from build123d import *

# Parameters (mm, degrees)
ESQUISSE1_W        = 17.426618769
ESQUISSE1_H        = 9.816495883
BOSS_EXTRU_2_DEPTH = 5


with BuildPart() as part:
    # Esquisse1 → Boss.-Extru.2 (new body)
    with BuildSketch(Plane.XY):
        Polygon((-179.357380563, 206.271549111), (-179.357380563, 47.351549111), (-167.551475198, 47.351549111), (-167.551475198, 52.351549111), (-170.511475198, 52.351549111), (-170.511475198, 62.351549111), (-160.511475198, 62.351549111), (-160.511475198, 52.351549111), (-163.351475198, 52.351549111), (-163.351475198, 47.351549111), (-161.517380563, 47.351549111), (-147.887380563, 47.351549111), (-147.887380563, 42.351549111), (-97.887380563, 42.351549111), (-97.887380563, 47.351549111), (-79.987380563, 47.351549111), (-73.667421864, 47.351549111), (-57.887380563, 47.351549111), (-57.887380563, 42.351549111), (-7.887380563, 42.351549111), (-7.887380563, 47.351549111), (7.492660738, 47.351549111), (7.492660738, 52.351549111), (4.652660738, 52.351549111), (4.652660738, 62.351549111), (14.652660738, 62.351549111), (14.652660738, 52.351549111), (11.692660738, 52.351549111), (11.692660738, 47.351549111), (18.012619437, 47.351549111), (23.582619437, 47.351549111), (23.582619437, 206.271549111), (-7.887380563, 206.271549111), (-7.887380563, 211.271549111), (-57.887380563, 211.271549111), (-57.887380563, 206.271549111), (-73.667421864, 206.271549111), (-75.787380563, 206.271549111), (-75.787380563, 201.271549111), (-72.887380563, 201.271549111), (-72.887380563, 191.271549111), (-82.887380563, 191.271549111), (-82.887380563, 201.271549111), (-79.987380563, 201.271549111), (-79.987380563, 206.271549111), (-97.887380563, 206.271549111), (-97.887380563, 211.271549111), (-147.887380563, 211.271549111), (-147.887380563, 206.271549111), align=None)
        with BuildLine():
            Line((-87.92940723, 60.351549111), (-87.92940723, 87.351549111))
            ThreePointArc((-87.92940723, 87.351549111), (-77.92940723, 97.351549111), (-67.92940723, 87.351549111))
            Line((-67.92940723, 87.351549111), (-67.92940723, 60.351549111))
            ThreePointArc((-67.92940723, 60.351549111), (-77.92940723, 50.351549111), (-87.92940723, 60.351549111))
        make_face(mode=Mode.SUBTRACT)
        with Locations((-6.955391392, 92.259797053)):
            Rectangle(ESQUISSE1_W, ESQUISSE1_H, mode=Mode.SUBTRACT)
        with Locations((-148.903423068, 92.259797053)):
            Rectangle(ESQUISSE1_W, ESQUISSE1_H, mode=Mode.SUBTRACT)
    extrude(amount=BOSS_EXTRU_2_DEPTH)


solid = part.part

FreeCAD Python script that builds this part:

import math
import FreeCAD as App
import Part
import Sketcher

V = App.Vector
Q = App.Units.Quantity

doc = App.newDocument("Part")
params = doc.addObject("Spreadsheet::Sheet", "Params")
for row, (alias, value) in enumerate([
    ("sketch1_radius", "10 mm"),
    ("sketch1_width", "10 mm"),
    ("sketch1_width2", "50 mm"),
    ("sketch1_width3", "40 mm"),
    ("sketch1_height", "5 mm"),
    ("pad1_length", "5 mm"),
], start=1):
    params.set(f"A{row}", alias)
    params.set(f"B{row}", "=" + value)
    params.setAlias(f"B{row}", alias)

body = doc.addObject("PartDesign::Body", "Body")

# Sketch on XY plane
sketch1 = body.newObject("Sketcher::SketchObject", "Sketch")
sketch1.AttachmentSupport = (doc.getObject("XY_Plane"), [""])
sketch1.MapMode = "FlatFace"
sketch1.addGeometry([
    Part.LineSegment(V(-179.357381, 206.271549, 0), V(-179.357381, 47.351549, 0)),  # 0
    Part.LineSegment(V(-179.357381, 47.351549, 0), V(-167.551475, 47.351549, 0)),  # 1
    Part.LineSegment(V(-167.551475, 47.351549, 0), V(-167.551475, 52.351549, 0)),  # 2
    Part.LineSegment(V(-167.551475, 52.351549, 0), V(-170.511475, 52.351549, 0)),  # 3
    Part.LineSegment(V(-170.511475, 52.351549, 0), V(-170.511475, 62.351549, 0)),  # 4
    Part.LineSegment(V(-170.511475, 62.351549, 0), V(-160.511475, 62.351549, 0)),  # 5
    Part.LineSegment(V(-160.511475, 62.351549, 0), V(-160.511475, 52.351549, 0)),  # 6
    Part.LineSegment(V(-160.511475, 52.351549, 0), V(-163.351475, 52.351549, 0)),  # 7
    Part.LineSegment(V(-163.351475, 52.351549, 0), V(-163.351475, 47.351549, 0)),  # 8
    Part.LineSegment(V(-163.351475, 47.351549, 0), V(-147.887381, 47.351549, 0)),  # 9
    Part.LineSegment(V(-147.887381, 47.351549, 0), V(-147.887381, 42.351549, 0)),  # 10
    Part.LineSegment(V(-147.887381, 42.351549, 0), V(-97.887381, 42.351549, 0)),  # 11
    Part.LineSegment(V(-97.887381, 42.351549, 0), V(-97.887381, 47.351549, 0)),  # 12
    Part.LineSegment(V(-97.887381, 47.351549, 0), V(-57.887381, 47.351549, 0)),  # 13
    Part.LineSegment(V(-57.887381, 47.351549, 0), V(-57.887381, 42.351549, 0)),  # 14
    Part.LineSegment(V(-57.887381, 42.351549, 0), V(-7.887381, 42.351549, 0)),  # 15
    Part.LineSegment(V(-7.887381, 42.351549, 0), V(-7.887381, 47.351549, 0)),  # 16
    Part.LineSegment(V(-7.887381, 47.351549, 0), V(7.492661, 47.351549, 0)),  # 17
    Part.LineSegment(V(7.492661, 47.351549, 0), V(7.492661, 52.351549, 0)),  # 18
    Part.LineSegment(V(7.492661, 52.351549, 0), V(4.652661, 52.351549, 0)),  # 19
    Part.LineSegment(V(4.652661, 52.351549, 0), V(4.652661, 62.351549, 0)),  # 20
    Part.LineSegment(V(4.652661, 62.351549, 0), V(14.652661, 62.351549, 0)),  # 21
    Part.LineSegment(V(14.652661, 62.351549, 0), V(14.652661, 52.351549, 0)),  # 22
    Part.LineSegment(V(14.652661, 52.351549, 0), V(11.692661, 52.351549, 0)),  # 23
    Part.LineSegment(V(11.692661, 52.351549, 0), V(11.692661, 47.351549, 0)),  # 24
    Part.LineSegment(V(11.692661, 47.351549, 0), V(23.582619, 47.351549, 0)),  # 25
    Part.LineSegment(V(23.582619, 47.351549, 0), V(23.582619, 206.271549, 0)),  # 26
    Part.LineSegment(V(23.582619, 206.271549, 0), V(-7.887381, 206.271549, 0)),  # 27
    Part.LineSegment(V(-7.887381, 206.271549, 0), V(-7.887381, 211.271549, 0)),  # 28
    Part.LineSegment(V(-7.887381, 211.271549, 0), V(-57.887381, 211.271549, 0)),  # 29
    Part.LineSegment(V(-57.887381, 211.271549, 0), V(-57.887381, 206.271549, 0)),  # 30
    Part.LineSegment(V(-57.887381, 206.271549, 0), V(-75.787381, 206.271549, 0)),  # 31
    Part.LineSegment(V(-75.787381, 206.271549, 0), V(-75.787381, 201.271549, 0)),  # 32
    Part.LineSegment(V(-75.787381, 201.271549, 0), V(-72.887381, 201.271549, 0)),  # 33
    Part.LineSegment(V(-72.887381, 201.271549, 0), V(-72.887381, 191.271549, 0)),  # 34
    Part.LineSegment(V(-72.887381, 191.271549, 0), V(-82.887381, 191.271549, 0)),  # 35
    Part.LineSegment(V(-82.887381, 191.271549, 0), V(-82.887381, 201.271549, 0)),  # 36
    Part.LineSegment(V(-82.887381, 201.271549, 0), V(-79.987381, 201.271549, 0)),  # 37
    Part.LineSegment(V(-79.987381, 201.271549, 0), V(-79.987381, 206.271549, 0)),  # 38
    Part.LineSegment(V(-79.987381, 206.271549, 0), V(-97.887381, 206.271549, 0)),  # 39
    Part.LineSegment(V(-97.887381, 206.271549, 0), V(-97.887381, 211.271549, 0)),  # 40
    Part.LineSegment(V(-97.887381, 211.271549, 0), V(-147.887381, 211.271549, 0)),  # 41
    Part.LineSegment(V(-147.887381, 211.271549, 0), V(-147.887381, 206.271549, 0)),  # 42
    Part.LineSegment(V(-147.887381, 206.271549, 0), V(-179.357381, 206.271549, 0)),  # 43
    Part.LineSegment(V(-140.190114, 87.351549, 0), V(-157.616732, 87.351549, 0)),  # 44
    Part.LineSegment(V(-157.616732, 87.351549, 0), V(-157.616732, 97.168045, 0)),  # 45
    Part.LineSegment(V(-157.616732, 97.168045, 0), V(-140.190114, 97.168045, 0)),  # 46
    Part.LineSegment(V(-140.190114, 97.168045, 0), V(-140.190114, 87.351549, 0)),  # 47
    Part.ArcOfCircle(Part.Circle(V(-77.929407, 60.351549, 0), V(0, 0, 1), 10), math.radians(180), math.radians(360)),  # 48
    Part.LineSegment(V(-87.929407, 60.351549, 0), V(-87.929407, 87.351549, 0)),  # 49
    Part.ArcOfCircle(Part.Circle(V(-77.929407, 87.351549, 0), V(0, 0, 1), 10), math.radians(0), math.radians(180)),  # 50
    Part.LineSegment(V(-67.929407, 87.351549, 0), V(-67.929407, 60.351549, 0)),  # 51
    Part.LineSegment(V(1.757918, 87.351549, 0), V(-15.668701, 87.351549, 0)),  # 52
    Part.LineSegment(V(-15.668701, 87.351549, 0), V(-15.668701, 97.168045, 0)),  # 53
    Part.LineSegment(V(-15.668701, 97.168045, 0), V(1.757918, 97.168045, 0)),  # 54
    Part.LineSegment(V(1.757918, 97.168045, 0), V(1.757918, 87.351549, 0)),  # 55
], False)
sketch1.addConstraint([
    Sketcher.Constraint("Coincident", 0, 2, 1, 1),
    Sketcher.Constraint("Coincident", 1, 2, 2, 1),
    Sketcher.Constraint("Coincident", 2, 2, 3, 1),
    Sketcher.Constraint("Coincident", 3, 2, 4, 1),
    Sketcher.Constraint("Coincident", 4, 2, 5, 1),
    Sketcher.Constraint("Coincident", 5, 2, 6, 1),
    Sketcher.Constraint("Coincident", 6, 2, 7, 1),
    Sketcher.Constraint("Coincident", 7, 2, 8, 1),
    Sketcher.Constraint("Coincident", 8, 2, 9, 1),
    Sketcher.Constraint("Coincident", 9, 2, 10, 1),
    Sketcher.Constraint("Coincident", 10, 2, 11, 1),
    Sketcher.Constraint("Coincident", 11, 2, 12, 1),
    Sketcher.Constraint("Coincident", 12, 2, 13, 1),
    Sketcher.Constraint("Coincident", 13, 2, 14, 1),
    Sketcher.Constraint("Coincident", 14, 2, 15, 1),
    Sketcher.Constraint("Coincident", 15, 2, 16, 1),
    Sketcher.Constraint("Coincident", 16, 2, 17, 1),
    Sketcher.Constraint("Coincident", 17, 2, 18, 1),
    Sketcher.Constraint("Coincident", 18, 2, 19, 1),
    Sketcher.Constraint("Coincident", 19, 2, 20, 1),
    Sketcher.Constraint("Coincident", 20, 2, 21, 1),
    Sketcher.Constraint("Coincident", 21, 2, 22, 1),
    Sketcher.Constraint("Coincident", 22, 2, 23, 1),
    Sketcher.Constraint("Coincident", 23, 2, 24, 1),
    Sketcher.Constraint("Coincident", 24, 2, 25, 1),
    Sketcher.Constraint("Coincident", 25, 2, 26, 1),
    Sketcher.Constraint("Coincident", 26, 2, 27, 1),
    Sketcher.Constraint("Coincident", 27, 2, 28, 1),
    Sketcher.Constraint("Coincident", 28, 2, 29, 1),
    Sketcher.Constraint("Coincident", 29, 2, 30, 1),
    Sketcher.Constraint("Coincident", 30, 2, 31, 1),
    Sketcher.Constraint("Coincident", 31, 2, 32, 1),
    Sketcher.Constraint("Coincident", 32, 2, 33, 1),
    Sketcher.Constraint("Coincident", 33, 2, 34, 1),
    Sketcher.Constraint("Coincident", 34, 2, 35, 1),
    Sketcher.Constraint("Coincident", 35, 2, 36, 1),
    Sketcher.Constraint("Coincident", 36, 2, 37, 1),
    Sketcher.Constraint("Coincident", 37, 2, 38, 1),
    Sketcher.Constraint("Coincident", 38, 2, 39, 1),
    Sketcher.Constraint("Coincident", 39, 2, 40, 1),
    Sketcher.Constraint("Coincident", 40, 2, 41, 1),
    Sketcher.Constraint("Coincident", 41, 2, 42, 1),
    Sketcher.Constraint("Coincident", 42, 2, 43, 1),
    Sketcher.Constraint("Coincident", 43, 2, 0, 1),
    Sketcher.Constraint("Coincident", 44, 2, 45, 1),
    Sketcher.Constraint("Coincident", 45, 2, 46, 1),
    Sketcher.Constraint("Coincident", 46, 2, 47, 1),
    Sketcher.Constraint("Coincident", 47, 2, 44, 1),
    Sketcher.Constraint("Tangent", 48, 1, 49, 1),
    Sketcher.Constraint("Tangent", 49, 2, 50, 2),
    Sketcher.Constraint("Tangent", 50, 1, 51, 1),
    Sketcher.Constraint("Tangent", 51, 2, 48, 2),
    Sketcher.Constraint("Coincident", 52, 2, 53, 1),
    Sketcher.Constraint("Coincident", 53, 2, 54, 1),
    Sketcher.Constraint("Coincident", 54, 2, 55, 1),
    Sketcher.Constraint("Coincident", 55, 2, 52, 1),
    Sketcher.Constraint("Vertical", 0),
    Sketcher.Constraint("Horizontal", 1),
    Sketcher.Constraint("Vertical", 2),
    Sketcher.Constraint("Horizontal", 3),
    Sketcher.Constraint("Vertical", 4),
    Sketcher.Constraint("Horizontal", 5),
    Sketcher.Constraint("Vertical", 6),
    Sketcher.Constraint("Horizontal", 7),
    Sketcher.Constraint("Vertical", 8),
    Sketcher.Constraint("Horizontal", 9),
    Sketcher.Constraint("Vertical", 10),
    Sketcher.Constraint("Horizontal", 11),
    Sketcher.Constraint("Vertical", 12),
    Sketcher.Constraint("Horizontal", 13),
    Sketcher.Constraint("Vertical", 14),
    Sketcher.Constraint("Horizontal", 15),
    Sketcher.Constraint("Vertical", 16),
    Sketcher.Constraint("Horizontal", 17),
    Sketcher.Constraint("Vertical", 18),
    Sketcher.Constraint("Horizontal", 19),
    Sketcher.Constraint("Vertical", 20),
    Sketcher.Constraint("Horizontal", 21),
    Sketcher.Constraint("Vertical", 22),
    Sketcher.Constraint("Horizontal", 23),
    Sketcher.Constraint("Vertical", 24),
    Sketcher.Constraint("Horizontal", 25),
    Sketcher.Constraint("Vertical", 26),
    Sketcher.Constraint("Horizontal", 27),
    Sketcher.Constraint("Vertical", 28),
    Sketcher.Constraint("Horizontal", 29),
    Sketcher.Constraint("Vertical", 30),
    Sketcher.Constraint("Horizontal", 31),
    Sketcher.Constraint("Vertical", 32),
    Sketcher.Constraint("Horizontal", 33),
    Sketcher.Constraint("Vertical", 34),
    Sketcher.Constraint("Horizontal", 35),
    Sketcher.Constraint("Vertical", 36),
    Sketcher.Constraint("Horizontal", 37),
    Sketcher.Constraint("Vertical", 38),
    Sketcher.Constraint("Horizontal", 39),
    Sketcher.Constraint("Vertical", 40),
    Sketcher.Constraint("Horizontal", 41),
    Sketcher.Constraint("Vertical", 42),
    Sketcher.Constraint("Horizontal", 43),
    Sketcher.Constraint("Horizontal", 44),
    Sketcher.Constraint("Vertical", 45),
    Sketcher.Constraint("Horizontal", 46),
    Sketcher.Constraint("Vertical", 47),
    Sketcher.Constraint("Vertical", 49),
    Sketcher.Constraint("Vertical", 51),
    Sketcher.Constraint("Horizontal", 52),
    Sketcher.Constraint("Vertical", 53),
    Sketcher.Constraint("Horizontal", 54),
    Sketcher.Constraint("Vertical", 55),
    Sketcher.Constraint("Horizontal", 3, 2, 6, 2),
    Sketcher.Constraint("Horizontal", 1, 2, 8, 2),
    Sketcher.Constraint("Horizontal", 9, 2, 12, 2),
    Sketcher.Constraint("Horizontal", 11, 2, 14, 2),
    Sketcher.Constraint("Horizontal", 13, 2, 16, 2),
    Sketcher.Constraint("Horizontal", 7, 2, 18, 2),
    Sketcher.Constraint("Horizontal", 5, 2, 20, 2),
    Sketcher.Constraint("Horizontal", 19, 2, 22, 2),
    Sketcher.Constraint("Horizontal", 17, 2, 24, 2),
    Sketcher.Constraint("Horizontal", 27, 2, 30, 2),
    Sketcher.Constraint("Horizontal", 33, 2, 36, 2),
    Sketcher.Constraint("Horizontal", 31, 2, 38, 2),
    Sketcher.Constraint("Horizontal", 29, 2, 40, 2),
    Sketcher.Constraint("Horizontal", 39, 2, 42, 2),
    Sketcher.Constraint("Horizontal", 50, 3, 44, 2),
    Sketcher.Constraint("Horizontal", 50, 1, 52, 2),
    Sketcher.Constraint("Horizontal", 46, 2, 53, 2),
    Sketcher.Constraint("Vertical", 16, 2, 27, 2),
    Sketcher.Constraint("Vertical", 14, 2, 29, 2),
    Sketcher.Constraint("Vertical", 12, 2, 39, 2),
    Sketcher.Constraint("Vertical", 10, 2, 41, 2),
    Sketcher.Constraint("Equal", 11, 15),
    Sketcher.Constraint("Equal", 7, 19),
    Sketcher.Constraint("Equal", 5, 21),
    Sketcher.Constraint("Equal", 3, 23),
    Sketcher.Constraint("Equal", 21, 35),
    Sketcher.Constraint("Equal", 33, 37),
    Sketcher.Constraint("Equal", 31, 39),
    Sketcher.Constraint("Equal", 27, 43),
    Sketcher.Constraint("Equal", 46, 52),
    Sketcher.Constraint("Equal", 35, 4),
    Sketcher.Constraint("Equal", 8, 10),
    Sketcher.Constraint("Equal", 24, 28),
    Sketcher.Constraint("Equal", 30, 32),
    Sketcher.Constraint("Equal", 22, 34),
    Sketcher.Constraint("Radius", 48, Q("10 mm")),
    Sketcher.Constraint("DistanceX", 5, 1, 5, 2, Q("10 mm")),
    Sketcher.Constraint("DistanceX", 11, 1, 11, 2, Q("50 mm")),
    Sketcher.Constraint("DistanceX", 13, 1, 13, 2, Q("40 mm")),
    Sketcher.Constraint("DistanceY", 2, 1, 2, 2, Q("5 mm")),
    Sketcher.Constraint("DistanceY", 49, 1, 49, 2, Q("27 mm")),
    Sketcher.Constraint("DistanceX", 31, 2, 31, 1, Q("17.9 mm")),
    Sketcher.Constraint("DistanceY", 0, 2, 48, 3, Q("13 mm")),
    Sketcher.Constraint("DistanceX", 3, 2, 3, 1, Q("2.96 mm")),
    Sketcher.Constraint("DistanceX", 7, 2, 7, 1, Q("2.84 mm")),
    Sketcher.Constraint("DistanceX", 27, 2, 27, 1, Q("31.47 mm")),
    Sketcher.Constraint("DistanceY", 0, 2, 0, 1, Q("158.92 mm")),
    Sketcher.Constraint("DistanceX", 17, 1, 17, 2, Q("15.380041 mm")),
    Sketcher.Constraint("DistanceX", 44, 2, 44, 1, Q("17.426619 mm")),
    Sketcher.Constraint("DistanceX", 52, 2, -1, 1, Q("15.668701 mm")),
    Sketcher.Constraint("DistanceX", 1, 1, 1, 2, Q("11.805905 mm")),
    Sketcher.Constraint("DistanceY", 45, 1, 45, 2, Q("9.816496 mm")),
    Sketcher.Constraint("DistanceY", -1, 1, 48, 3, Q("60.351549 mm")),
    Sketcher.Constraint("DistanceX", 0, 2, -1, 1, Q("179.357381 mm")),
    Sketcher.Constraint("DistanceX", 5, 2, 46, 2, Q("20.321362 mm")),
    Sketcher.Constraint("DistanceX", 48, 3, -1, 1, Q("77.929407 mm")),
])
sketch1.setExpression("Constraints[145]", "Params.sketch1_radius")
sketch1.setExpression("Constraints[146]", "Params.sketch1_width")
sketch1.setExpression("Constraints[147]", "Params.sketch1_width2")
sketch1.setExpression("Constraints[148]", "Params.sketch1_width3")
sketch1.setExpression("Constraints[149]", "Params.sketch1_height")
pad1 = body.newObject("PartDesign::Pad", "Pad")
pad1.Profile = sketch1
pad1.setExpression("Length", "Params.pad1_length")

doc.recompute()
